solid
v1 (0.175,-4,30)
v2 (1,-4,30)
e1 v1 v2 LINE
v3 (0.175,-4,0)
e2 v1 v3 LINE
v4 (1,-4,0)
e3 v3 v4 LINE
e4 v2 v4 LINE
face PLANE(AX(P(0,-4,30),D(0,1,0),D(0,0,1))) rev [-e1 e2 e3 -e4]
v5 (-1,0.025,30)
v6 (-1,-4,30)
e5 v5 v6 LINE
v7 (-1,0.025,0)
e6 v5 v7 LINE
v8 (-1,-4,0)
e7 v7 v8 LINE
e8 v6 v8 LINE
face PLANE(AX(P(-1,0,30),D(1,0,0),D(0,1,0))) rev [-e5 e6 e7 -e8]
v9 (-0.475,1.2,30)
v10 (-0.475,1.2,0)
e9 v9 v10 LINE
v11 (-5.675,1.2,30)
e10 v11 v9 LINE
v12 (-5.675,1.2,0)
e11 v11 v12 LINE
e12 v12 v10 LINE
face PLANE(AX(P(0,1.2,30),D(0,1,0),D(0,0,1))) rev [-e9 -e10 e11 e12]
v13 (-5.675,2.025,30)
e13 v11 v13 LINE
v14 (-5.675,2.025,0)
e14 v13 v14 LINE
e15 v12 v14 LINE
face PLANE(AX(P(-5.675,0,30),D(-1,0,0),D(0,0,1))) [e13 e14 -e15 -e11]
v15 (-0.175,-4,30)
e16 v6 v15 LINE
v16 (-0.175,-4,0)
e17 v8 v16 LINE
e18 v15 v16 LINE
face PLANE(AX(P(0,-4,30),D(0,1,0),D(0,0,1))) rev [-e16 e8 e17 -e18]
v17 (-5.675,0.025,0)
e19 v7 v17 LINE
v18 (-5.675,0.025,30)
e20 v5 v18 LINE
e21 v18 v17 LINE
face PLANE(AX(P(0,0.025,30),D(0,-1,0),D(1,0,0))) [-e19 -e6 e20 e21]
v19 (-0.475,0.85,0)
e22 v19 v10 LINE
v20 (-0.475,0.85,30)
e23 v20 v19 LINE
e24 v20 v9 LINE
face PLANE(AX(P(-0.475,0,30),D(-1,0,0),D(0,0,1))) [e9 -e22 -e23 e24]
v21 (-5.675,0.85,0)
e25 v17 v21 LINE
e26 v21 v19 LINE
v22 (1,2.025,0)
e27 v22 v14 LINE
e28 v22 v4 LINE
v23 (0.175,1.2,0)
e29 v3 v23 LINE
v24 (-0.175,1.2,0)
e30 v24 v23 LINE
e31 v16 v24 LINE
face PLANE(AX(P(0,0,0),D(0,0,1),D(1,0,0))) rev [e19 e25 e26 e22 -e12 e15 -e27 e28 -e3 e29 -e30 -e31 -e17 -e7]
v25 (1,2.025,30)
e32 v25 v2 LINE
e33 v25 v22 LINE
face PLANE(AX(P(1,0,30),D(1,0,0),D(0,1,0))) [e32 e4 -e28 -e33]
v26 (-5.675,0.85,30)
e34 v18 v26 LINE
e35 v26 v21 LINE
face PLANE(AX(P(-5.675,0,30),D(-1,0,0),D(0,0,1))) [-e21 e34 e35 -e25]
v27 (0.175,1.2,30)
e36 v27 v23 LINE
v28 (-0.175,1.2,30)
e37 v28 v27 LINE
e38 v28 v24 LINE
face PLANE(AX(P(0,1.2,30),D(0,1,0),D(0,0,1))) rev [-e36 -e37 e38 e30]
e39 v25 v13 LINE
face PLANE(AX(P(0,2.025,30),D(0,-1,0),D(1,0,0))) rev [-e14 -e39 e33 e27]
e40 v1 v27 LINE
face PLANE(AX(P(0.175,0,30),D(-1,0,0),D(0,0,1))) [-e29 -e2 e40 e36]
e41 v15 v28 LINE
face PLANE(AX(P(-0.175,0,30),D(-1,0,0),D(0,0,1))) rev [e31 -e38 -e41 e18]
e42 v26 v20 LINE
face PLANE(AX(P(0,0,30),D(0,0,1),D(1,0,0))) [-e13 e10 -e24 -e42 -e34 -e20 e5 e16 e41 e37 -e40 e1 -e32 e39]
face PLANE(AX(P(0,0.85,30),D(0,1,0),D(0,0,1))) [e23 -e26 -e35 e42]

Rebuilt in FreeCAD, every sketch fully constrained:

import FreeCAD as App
import Part
import Sketcher
Q = App.Units.Quantity


def add_polygon(sketch, points):
    """Adds a closed chain of lines whose ends are joined by coincident constraints."""
    first, n = sketch.GeometryCount, len(points)
    for a, b in zip(points, points[1:] + points[:1]):
        sketch.addGeometry(Part.LineSegment(App.Vector(*a, 0), App.Vector(*b, 0)), False)
    for i in range(n):
        sketch.addConstraint(Sketcher.Constraint("Coincident", first + i, 2, first + (i + 1) % n, 1))

doc = App.newDocument("Part")
body = doc.addObject("PartDesign::Body", "Body")

# Sketch on XY plane
sketch1 = doc.addObject("Sketcher::SketchObject", "Sketch")
body.addObject(sketch1)
sketch1.AttachmentSupport = (doc.XY_Plane, [""])
sketch1.MapMode = "FlatFace"
add_polygon(sketch1, [(-5.675, 2.025), (-5.675, 1.2), (-0.475, 1.2), (-0.475, 0.85), (-5.675, 0.85), (-5.675, 0.025), (-1, 0.025), (-1, -4), (-0.175, -4), (-0.175, 1.2), (0.175, 1.2), (0.175, -4), (1, -4), (1, 2.025)])  # lines 0-13
sketch1.addConstraint([
    Sketcher.Constraint("Vertical", 0),
    Sketcher.Constraint("Horizontal", 1),
    Sketcher.Constraint("Vertical", 2),
    Sketcher.Constraint("Horizontal", 3),
    Sketcher.Constraint("Vertical", 4),
    Sketcher.Constraint("Horizontal", 5),
    Sketcher.Constraint("Vertical", 6),
    Sketcher.Constraint("Horizontal", 7),
    Sketcher.Constraint("Vertical", 8),
    Sketcher.Constraint("Horizontal", 9),
    Sketcher.Constraint("Vertical", 10),
    Sketcher.Constraint("Horizontal", 11),
    Sketcher.Constraint("Vertical", 12),
    Sketcher.Constraint("Horizontal", 13),
    Sketcher.Constraint("Symmetric", 7, 2, 10, 2, -2),
    Sketcher.Constraint("Horizontal", 1, 2, 8, 2),
    Sketcher.Constraint("Vertical", 0, 2, 3, 2),
    Sketcher.Constraint("Equal", 7, 11),
    Sketcher.Constraint("Equal", 11, 0),
    Sketcher.Constraint("Equal", 9, 2),
    Sketcher.Constraint("Equal", 0, 4),
    Sketcher.Constraint("Equal", 3, 8),
    Sketcher.Constraint("DistanceX", 1, 1, 1, 2, Q("5.2 mm")),
    Sketcher.Constraint("DistanceX", 5, 2, -1, 1, Q("1 mm")),
    Sketcher.Constraint("DistanceY", 6, 2, -1, 1, Q("4 mm")),
    Sketcher.Constraint("DistanceX", 9, 1, 9, 2, Q("0.35 mm")),
    Sketcher.Constraint("DistanceX", 2, 2, 7, 2, Q("0.3 mm")),
])
pad1 = doc.addObject("PartDesign::Pad", "Pad")
body.addObject(pad1)
pad1.Profile = sketch1
pad1.Length = 30

doc.recompute()
